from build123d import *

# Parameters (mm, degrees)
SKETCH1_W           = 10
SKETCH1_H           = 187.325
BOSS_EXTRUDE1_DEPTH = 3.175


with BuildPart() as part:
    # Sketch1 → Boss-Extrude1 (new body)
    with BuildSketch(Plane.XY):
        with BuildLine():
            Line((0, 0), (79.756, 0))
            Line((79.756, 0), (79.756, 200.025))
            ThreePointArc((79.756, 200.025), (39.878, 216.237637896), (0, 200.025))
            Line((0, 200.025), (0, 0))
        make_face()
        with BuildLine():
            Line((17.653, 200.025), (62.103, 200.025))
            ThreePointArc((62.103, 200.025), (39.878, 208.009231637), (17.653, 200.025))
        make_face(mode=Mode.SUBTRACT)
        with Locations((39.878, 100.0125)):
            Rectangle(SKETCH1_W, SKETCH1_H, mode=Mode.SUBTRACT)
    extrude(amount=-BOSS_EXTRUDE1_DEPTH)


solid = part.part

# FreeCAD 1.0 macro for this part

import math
import FreeCAD as App
import Part
import Sketcher
from FreeCAD import Vector
Q = App.Units.Quantity

doc = App.newDocument("Part")
body = doc.addObject("PartDesign::Body", "Body")

sketch1 = doc.addObject("Sketcher::SketchObject", "Sketch")
body.addObject(sketch1)
sketch1.AttachmentSupport = (doc.XY_Plane, [""])
sketch1.MapMode = "FlatFace"
sketch1.addGeometry([
    Part.LineSegment(Vector(0, 0, 0), Vector(80, 0, 0)),
    Part.LineSegment(Vector(80, 0, 0), Vector(80, 200, 0)),
    Part.ArcOfCircle(Part.Circle(Vector(40, 159, 0), Vector(0, 0, 1), 57), math.radians(46), math.radians(134)),
    Part.LineSegment(Vector(0, 200, 0), Vector(0, 0, 0)),
    Part.LineSegment(Vector(45, 6, 0), Vector(35, 6, 0)),
    Part.LineSegment(Vector(35, 6, 0), Vector(35, 194, 0)),
    Part.LineSegment(Vector(35, 194, 0), Vector(45, 194, 0)),
    Part.LineSegment(Vector(45, 194, 0), Vector(45, 6, 0)),
    Part.LineSegment(Vector(62, 200, 0), Vector(18, 200, 0)),
    Part.ArcOfCircle(Part.Circle(Vector(40, 173, 0), Vector(0, 0, 1), 35), math.radians(50), math.radians(130)),
], False)
sketch1.addConstraint([
    Sketcher.Constraint("Coincident", 0, 2, 1, 1),
    Sketcher.Constraint("Coincident", 1, 2, 2, 1),
    Sketcher.Constraint("Coincident", 2, 2, 3, 1),
    Sketcher.Constraint("Coincident", 3, 2, 0, 1),
    Sketcher.Constraint("Coincident", 4, 2, 5, 1),
    Sketcher.Constraint("Coincident", 5, 2, 6, 1),
    Sketcher.Constraint("Coincident", 6, 2, 7, 1),
    Sketcher.Constraint("Coincident", 7, 2, 4, 1),
    Sketcher.Constraint("Coincident", 8, 1, 9, 1),
    Sketcher.Constraint("Coincident", 9, 2, 8, 2),
    Sketcher.Constraint("Horizontal", 0),
    Sketcher.Constraint("Vertical", 1),
    Sketcher.Constraint("Vertical", 3),
    Sketcher.Constraint("Horizontal", 4),
    Sketcher.Constraint("Vertical", 5),
    Sketcher.Constraint("Horizontal", 6),
    Sketcher.Constraint("Vertical", 7),
    Sketcher.Constraint("Horizontal", 8),
    Sketcher.Constraint("Coincident", 3, 2, -1, 1),
    Sketcher.Constraint("Horizontal", 1, 2, 2, 2),
    Sketcher.Constraint("Horizontal", 2, 2, 8, 1),
    Sketcher.Constraint("Vertical", 2, 3, 9, 3),
    Sketcher.Constraint("Radius", 2, Q("2.25 in")),
    Sketcher.Constraint("Radius", 9, Q("1.375 in")),
    Sketcher.Constraint("DistanceX", 0, 1, 0, 2, Q("3.14 in")),
    Sketcher.Constraint("DistanceX", 8, 2, 8, 1, Q("1.75 in")),
    Sketcher.Constraint("DistanceY", 1, 1, 1, 2, Q("7.875 in")),
    Sketcher.Constraint("DistanceY", 5, 1, 5, 2, Q("7.375 in")),
    Sketcher.Constraint("DistanceY", -1, 1, 4, 2, Q("0.25 in")),
    Sketcher.Constraint("DistanceX", 4, 2, 4, 1, 10.0),
    Sketcher.Constraint("DistanceX", -1, 1, 4, 2, 34.878),
])
pad1 = doc.addObject("PartDesign::Pad", "Pad")
body.addObject(pad1)
pad1.Profile = sketch1
pad1.Length = Q("0.125 in")
pad1.Reversed = True

doc.recompute()
